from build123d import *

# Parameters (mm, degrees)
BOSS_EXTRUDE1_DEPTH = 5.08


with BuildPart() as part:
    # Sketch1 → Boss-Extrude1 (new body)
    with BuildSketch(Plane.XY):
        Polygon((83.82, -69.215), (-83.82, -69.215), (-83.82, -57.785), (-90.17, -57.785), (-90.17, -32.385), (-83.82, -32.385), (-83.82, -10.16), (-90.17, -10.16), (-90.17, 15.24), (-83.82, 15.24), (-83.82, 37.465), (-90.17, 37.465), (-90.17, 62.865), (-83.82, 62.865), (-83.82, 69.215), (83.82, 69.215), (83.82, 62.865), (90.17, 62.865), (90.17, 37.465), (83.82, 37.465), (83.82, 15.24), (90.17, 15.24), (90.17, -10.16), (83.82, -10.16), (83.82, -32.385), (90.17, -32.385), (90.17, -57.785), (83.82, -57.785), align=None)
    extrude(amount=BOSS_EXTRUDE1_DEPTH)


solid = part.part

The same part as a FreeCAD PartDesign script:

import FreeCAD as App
import Part
import Sketcher
from FreeCAD import Vector
Q = App.Units.Quantity

doc = App.newDocument("Part")
body = doc.addObject("PartDesign::Body", "Body")

# Sketch on XY plane
sketch1 = body.newObject("Sketcher::SketchObject", "Sketch")
sketch1.AttachmentSupport = (doc.getObject("XY_Plane"), [""])
sketch1.MapMode = "FlatFace"
sketch1.addGeometry([
    Part.LineSegment(Vector(-83.82, -69.215, 0), Vector(83.82, -69.215, 0)),  # 0
    Part.LineSegment(Vector(83.82, -69.215, 0), Vector(83.82, -57.785, 0)),  # 1
    Part.LineSegment(Vector(83.82, -57.785, 0), Vector(90.17, -57.785, 0)),  # 2
    Part.LineSegment(Vector(90.17, -57.785, 0), Vector(90.17, -32.385, 0)),  # 3
    Part.LineSegment(Vector(90.17, -32.385, 0), Vector(83.82, -32.385, 0)),  # 4
    Part.LineSegment(Vector(83.82, -32.385, 0), Vector(83.82, -10.16, 0)),  # 5
    Part.LineSegment(Vector(83.82, -10.16, 0), Vector(90.17, -10.16, 0)),  # 6
    Part.LineSegment(Vector(90.17, -10.16, 0), Vector(90.17, 15.24, 0)),  # 7
    Part.LineSegment(Vector(90.17, 15.24, 0), Vector(83.82, 15.24, 0)),  # 8
    Part.LineSegment(Vector(83.82, 15.24, 0), Vector(83.82, 37.465, 0)),  # 9
    Part.LineSegment(Vector(83.82, 37.465, 0), Vector(90.17, 37.465, 0)),  # 10
    Part.LineSegment(Vector(90.17, 37.465, 0), Vector(90.17, 62.865, 0)),  # 11
    Part.LineSegment(Vector(90.17, 62.865, 0), Vector(83.82, 62.865, 0)),  # 12
    Part.LineSegment(Vector(83.82, 62.865, 0), Vector(83.82, 69.215, 0)),  # 13
    Part.LineSegment(Vector(83.82, 69.215, 0), Vector(-83.82, 69.215, 0)),  # 14
    Part.LineSegment(Vector(-83.82, 69.215, 0), Vector(-83.82, 62.865, 0)),  # 15
    Part.LineSegment(Vector(-83.82, 62.865, 0), Vector(-90.17, 62.865, 0)),  # 16
    Part.LineSegment(Vector(-90.17, 62.865, 0), Vector(-90.17, 37.465, 0)),  # 17
    Part.LineSegment(Vector(-90.17, 37.465, 0), Vector(-83.82, 37.465, 0)),  # 18
    Part.LineSegment(Vector(-83.82, 37.465, 0), Vector(-83.82, 15.24, 0)),  # 19
    Part.LineSegment(Vector(-83.82, 15.24, 0), Vector(-90.17, 15.24, 0)),  # 20
    Part.LineSegment(Vector(-90.17, 15.24, 0), Vector(-90.17, -10.16, 0)),  # 21
    Part.LineSegment(Vector(-90.17, -10.16, 0), Vector(-83.82, -10.16, 0)),  # 22
    Part.LineSegment(Vector(-83.82, -10.16, 0), Vector(-83.82, -32.385, 0)),  # 23
    Part.LineSegment(Vector(-83.82, -32.385, 0), Vector(-90.17, -32.385, 0)),  # 24
    Part.LineSegment(Vector(-90.17, -32.385, 0), Vector(-90.17, -57.785, 0)),  # 25
    Part.LineSegment(Vector(-90.17, -57.785, 0), Vector(-83.82, -57.785, 0)),  # 26
    Part.LineSegment(Vector(-83.82, -57.785, 0), Vector(-83.82, -69.215, 0)),  # 27
], False)
sketch1.addConstraint([
    Sketcher.Constraint("Coincident", 0, 2, 1, 1),
    Sketcher.Constraint("Coincident", 1, 2, 2, 1),
    Sketcher.Constraint("Coincident", 2, 2, 3, 1),
    Sketcher.Constraint("Coincident", 3, 2, 4, 1),
    Sketcher.Constraint("Coincident", 4, 2, 5, 1),
    Sketcher.Constraint("Coincident", 5, 2, 6, 1),
    Sketcher.Constraint("Coincident", 6, 2, 7, 1),
    Sketcher.Constraint("Coincident", 7, 2, 8, 1),
    Sketcher.Constraint("Coincident", 8, 2, 9, 1),
    Sketcher.Constraint("Coincident", 9, 2, 10, 1),
    Sketcher.Constraint("Coincident", 10, 2, 11, 1),
    Sketcher.Constraint("Coincident", 11, 2, 12, 1),
    Sketcher.Constraint("Coincident", 12, 2, 13, 1),
    Sketcher.Constraint("Coincident", 13, 2, 14, 1),
    Sketcher.Constraint("Coincident", 14, 2, 15, 1),
    Sketcher.Constraint("Coincident", 15, 2, 16, 1),
    Sketcher.Constraint("Coincident", 16, 2, 17, 1),
    Sketcher.Constraint("Coincident", 17, 2, 18, 1),
    Sketcher.Constraint("Coincident", 18, 2, 19, 1),
    Sketcher.Constraint("Coincident", 19, 2, 20, 1),
    Sketcher.Constraint("Coincident", 20, 2, 21, 1),
    Sketcher.Constraint("Coincident", 21, 2, 22, 1),
    Sketcher.Constraint("Coincident", 22, 2, 23, 1),
    Sketcher.Constraint("Coincident", 23, 2, 24, 1),
    Sketcher.Constraint("Coincident", 24, 2, 25, 1),
    Sketcher.Constraint("Coincident", 25, 2, 26, 1),
    Sketcher.Constraint("Coincident", 26, 2, 27, 1),
    Sketcher.Constraint("Coincident", 27, 2, 0, 1),
    Sketcher.Constraint("Horizontal", 0),
    Sketcher.Constraint("Vertical", 1),
    Sketcher.Constraint("Horizontal", 2),
    Sketcher.Constraint("Vertical", 3),
    Sketcher.Constraint("Horizontal", 4),
    Sketcher.Constraint("Vertical", 5),
    Sketcher.Constraint("Horizontal", 6),
    Sketcher.Constraint("Vertical", 7),
    Sketcher.Constraint("Horizontal", 8),
    Sketcher.Constraint("Vertical", 9),
    Sketcher.Constraint("Horizontal", 10),
    Sketcher.Constraint("Vertical", 11),
    Sketcher.Constraint("Horizontal", 12),
    Sketcher.Constraint("Vertical", 13),
    Sketcher.Constraint("Horizontal", 14),
    Sketcher.Constraint("Vertical", 15),
    Sketcher.Constraint("Horizontal", 16),
    Sketcher.Constraint("Vertical", 17),
    Sketcher.Constraint("Horizontal", 18),
    Sketcher.Constraint("Vertical", 19),
    Sketcher.Constraint("Horizontal", 20),
    Sketcher.Constraint("Vertical", 21),
    Sketcher.Constraint("Horizontal", 22),
    Sketcher.Constraint("Vertical", 23),
    Sketcher.Constraint("Horizontal", 24),
    Sketcher.Constraint("Vertical", 25),
    Sketcher.Constraint("Horizontal", 26),
    Sketcher.Constraint("Vertical", 27),
    Sketcher.Constraint("Symmetric", 0, 2, 14, 2, -1, 1),
    Sketcher.Constraint("Symmetric", 12, 2, 15, 2, -2),
    Sketcher.Constraint("Symmetric", 10, 2, 17, 2, -2),
    Sketcher.Constraint("Symmetric", 8, 2, 19, 2, -2),
    Sketcher.Constraint("Symmetric", 6, 2, 21, 2, -2),
    Sketcher.Constraint("Symmetric", 4, 2, 23, 2, -2),
    Sketcher.Constraint("Symmetric", 2, 2, 25, 2, -2),
    Sketcher.Constraint("Vertical", 1, 2, 4, 2),
    Sketcher.Constraint("Vertical", 3, 2, 6, 2),
    Sketcher.Constraint("Vertical", 5, 2, 8, 2),
    Sketcher.Constraint("Vertical", 7, 2, 10, 2),
    Sketcher.Constraint("Vertical", 23, 2, 26, 2),
    Sketcher.Constraint("Equal", 3, 7),
    Sketcher.Constraint("Equal", 5, 9),
    Sketcher.Constraint("Equal", 7, 11),
    Sketcher.Constraint("Equal", 26, 13),
    Sketcher.Constraint("DistanceY", 3, 1, 3, 2, Q("1 in")),
    Sketcher.Constraint("DistanceX", 0, 1, 0, 2, Q("6.6 in")),
    Sketcher.Constraint("DistanceX", 2, 1, 2, 2, Q("0.25 in")),
    Sketcher.Constraint("DistanceY", 1, 1, 1, 2, Q("0.45 in")),
    Sketcher.Constraint("DistanceY", 5, 1, 5, 2, Q("0.875 in")),
])
pad1 = body.newObject("PartDesign::Pad", "Pad")
pad1.Profile = sketch1
pad1.Length = Q("0.2 in")

doc.recompute()
